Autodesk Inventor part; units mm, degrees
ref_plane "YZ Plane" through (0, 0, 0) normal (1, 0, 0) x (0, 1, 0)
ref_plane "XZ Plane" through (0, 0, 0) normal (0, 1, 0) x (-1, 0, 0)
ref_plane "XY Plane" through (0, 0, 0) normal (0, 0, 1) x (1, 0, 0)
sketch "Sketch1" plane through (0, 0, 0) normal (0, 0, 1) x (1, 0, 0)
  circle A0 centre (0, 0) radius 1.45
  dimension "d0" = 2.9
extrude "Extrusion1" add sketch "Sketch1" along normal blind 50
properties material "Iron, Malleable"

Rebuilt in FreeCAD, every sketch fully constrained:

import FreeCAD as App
import Part
import Sketcher
from FreeCAD import Vector

doc = App.newDocument("Part")
body = doc.addObject("PartDesign::Body", "Body")

sketch1 = body.newObject("Sketcher::SketchObject", "Sketch")
sketch1.AttachmentSupport = (doc.getObject("XY_Plane"), [""])
sketch1.MapMode = "FlatFace"
sketch1.addGeometry(Part.Circle(Vector(0, 0, 0), Vector(0, 0, 1), 1.4), False)
sketch1.addConstraint([
    Sketcher.Constraint("Coincident", 0, 3, -1, 1),
    Sketcher.Constraint("Diameter", 0, 2.9),
])
pad1 = body.newObject("PartDesign::Pad", "Pad")
pad1.Profile = sketch1
pad1.Length = 50

doc.recompute()
